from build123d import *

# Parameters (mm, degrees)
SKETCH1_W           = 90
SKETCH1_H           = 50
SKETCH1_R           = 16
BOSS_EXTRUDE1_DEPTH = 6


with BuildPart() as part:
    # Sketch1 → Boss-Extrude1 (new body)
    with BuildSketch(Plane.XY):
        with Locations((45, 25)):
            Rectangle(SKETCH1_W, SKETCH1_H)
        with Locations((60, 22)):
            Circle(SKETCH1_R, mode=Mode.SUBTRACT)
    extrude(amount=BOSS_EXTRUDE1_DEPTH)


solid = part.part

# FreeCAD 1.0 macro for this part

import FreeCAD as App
import Part
import Sketcher
from FreeCAD import Vector

doc = App.newDocument("Part")
body = doc.addObject("PartDesign::Body", "Body")

# Sketch on XY plane
sketch1 = body.newObject("Sketcher::SketchObject", "Sketch")
sketch1.AttachmentSupport = (doc.getObject("XY_Plane"), [""])
sketch1.MapMode = "FlatFace"
sketch1.addGeometry([
    Part.LineSegment(Vector(0, 50, 0), Vector(0, 0, 0)),  # 0
    Part.LineSegment(Vector(0, 0, 0), Vector(90, 0, 0)),  # 1
    Part.LineSegment(Vector(90, 0, 0), Vector(90, 50, 0)),  # 2
    Part.LineSegment(Vector(90, 50, 0), Vector(0, 50, 0)),  # 3
    Part.Circle(Vector(60, 22, 0), Vector(0, 0, 1), 16),  # 4
], False)
sketch1.addConstraint([
    Sketcher.Constraint("Coincident", 0, 2, 1, 1),
    Sketcher.Constraint("Coincident", 1, 2, 2, 1),
    Sketcher.Constraint("Coincident", 2, 2, 3, 1),
    Sketcher.Constraint("Coincident", 3, 2, 0, 1),
    Sketcher.Constraint("Vertical", 0),
    Sketcher.Constraint("Horizontal", 1),
    Sketcher.Constraint("Vertical", 2),
    Sketcher.Constraint("Horizontal", 3),
    Sketcher.Constraint("Coincident", 0, 2, -1, 1),
    Sketcher.Constraint("Diameter", 4, 32.0),
    Sketcher.Constraint("DistanceX", 1, 1, 1, 2, 90.0),
    Sketcher.Constraint("DistanceY", 0, 2, 0, 1, 50.0),
    Sketcher.Constraint("DistanceX", -1, 1, 4, 3, 60.0),
    Sketcher.Constraint("DistanceY", -1, 1, 4, 3, 22.0),
])
pad1 = body.newObject("PartDesign::Pad", "Pad")
pad1.Profile = sketch1
pad1.Length = 6

doc.recompute()
